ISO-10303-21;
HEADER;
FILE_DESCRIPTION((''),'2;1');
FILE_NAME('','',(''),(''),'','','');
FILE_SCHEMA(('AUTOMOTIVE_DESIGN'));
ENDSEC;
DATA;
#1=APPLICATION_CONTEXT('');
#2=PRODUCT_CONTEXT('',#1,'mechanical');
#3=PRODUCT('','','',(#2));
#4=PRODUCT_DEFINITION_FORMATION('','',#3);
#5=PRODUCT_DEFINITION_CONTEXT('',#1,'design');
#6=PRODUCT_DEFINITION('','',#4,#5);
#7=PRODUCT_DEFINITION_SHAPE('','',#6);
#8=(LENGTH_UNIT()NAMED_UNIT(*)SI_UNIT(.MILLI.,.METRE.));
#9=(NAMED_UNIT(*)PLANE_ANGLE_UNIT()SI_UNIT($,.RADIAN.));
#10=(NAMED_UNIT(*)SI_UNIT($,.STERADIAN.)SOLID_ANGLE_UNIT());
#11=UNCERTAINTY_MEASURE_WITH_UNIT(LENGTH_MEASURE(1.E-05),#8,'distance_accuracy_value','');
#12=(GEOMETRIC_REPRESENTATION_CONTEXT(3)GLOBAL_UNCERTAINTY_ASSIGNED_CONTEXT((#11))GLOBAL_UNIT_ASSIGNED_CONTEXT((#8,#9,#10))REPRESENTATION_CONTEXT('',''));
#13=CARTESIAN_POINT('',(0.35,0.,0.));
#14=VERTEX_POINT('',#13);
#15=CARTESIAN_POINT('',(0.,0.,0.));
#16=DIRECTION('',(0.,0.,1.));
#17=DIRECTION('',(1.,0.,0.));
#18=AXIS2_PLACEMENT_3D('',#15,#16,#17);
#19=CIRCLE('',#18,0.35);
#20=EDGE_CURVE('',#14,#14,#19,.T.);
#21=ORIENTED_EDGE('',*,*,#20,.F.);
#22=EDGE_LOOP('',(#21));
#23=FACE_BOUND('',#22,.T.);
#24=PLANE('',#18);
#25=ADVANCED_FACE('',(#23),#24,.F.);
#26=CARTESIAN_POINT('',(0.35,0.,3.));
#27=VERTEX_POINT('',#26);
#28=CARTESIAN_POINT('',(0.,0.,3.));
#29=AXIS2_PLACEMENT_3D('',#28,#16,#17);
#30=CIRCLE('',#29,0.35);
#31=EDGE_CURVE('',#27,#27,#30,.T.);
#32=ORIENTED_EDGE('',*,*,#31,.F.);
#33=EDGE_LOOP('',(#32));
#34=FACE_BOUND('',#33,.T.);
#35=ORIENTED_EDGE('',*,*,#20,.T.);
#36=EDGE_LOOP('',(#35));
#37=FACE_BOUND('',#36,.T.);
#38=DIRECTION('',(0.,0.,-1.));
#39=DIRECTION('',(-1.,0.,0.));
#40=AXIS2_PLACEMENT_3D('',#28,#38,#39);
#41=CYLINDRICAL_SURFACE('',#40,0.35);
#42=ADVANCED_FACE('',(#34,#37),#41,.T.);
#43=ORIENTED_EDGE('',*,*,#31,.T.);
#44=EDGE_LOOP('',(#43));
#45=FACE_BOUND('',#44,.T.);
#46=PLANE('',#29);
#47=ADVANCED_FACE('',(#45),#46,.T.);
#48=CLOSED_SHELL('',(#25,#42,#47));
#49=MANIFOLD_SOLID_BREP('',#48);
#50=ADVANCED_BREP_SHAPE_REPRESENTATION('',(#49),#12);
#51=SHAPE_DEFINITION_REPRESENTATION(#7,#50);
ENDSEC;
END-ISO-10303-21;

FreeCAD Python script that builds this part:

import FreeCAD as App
import Part
import Sketcher

V = App.Vector

doc = App.newDocument("Part")
body = doc.addObject("PartDesign::Body", "Body")

# Sketch on XY plane
sketch1 = doc.addObject("Sketcher::SketchObject", "Sketch")
body.addObject(sketch1)
sketch1.AttachmentSupport = (doc.XY_Plane, [""])
sketch1.MapMode = "FlatFace"
sketch1.addGeometry(Part.Circle(V(0, 0, 0), V(0, 0, 1), 0.35), False)
sketch1.addConstraint(Sketcher.Constraint("Coincident", 0, 3, -1, 1))
sketch1.addConstraint(Sketcher.Constraint("Diameter", 0, 0.7))
pad1 = doc.addObject("PartDesign::Pad", "Pad")
body.addObject(pad1)
pad1.Profile = sketch1
pad1.Length = 3

doc.recompute()
